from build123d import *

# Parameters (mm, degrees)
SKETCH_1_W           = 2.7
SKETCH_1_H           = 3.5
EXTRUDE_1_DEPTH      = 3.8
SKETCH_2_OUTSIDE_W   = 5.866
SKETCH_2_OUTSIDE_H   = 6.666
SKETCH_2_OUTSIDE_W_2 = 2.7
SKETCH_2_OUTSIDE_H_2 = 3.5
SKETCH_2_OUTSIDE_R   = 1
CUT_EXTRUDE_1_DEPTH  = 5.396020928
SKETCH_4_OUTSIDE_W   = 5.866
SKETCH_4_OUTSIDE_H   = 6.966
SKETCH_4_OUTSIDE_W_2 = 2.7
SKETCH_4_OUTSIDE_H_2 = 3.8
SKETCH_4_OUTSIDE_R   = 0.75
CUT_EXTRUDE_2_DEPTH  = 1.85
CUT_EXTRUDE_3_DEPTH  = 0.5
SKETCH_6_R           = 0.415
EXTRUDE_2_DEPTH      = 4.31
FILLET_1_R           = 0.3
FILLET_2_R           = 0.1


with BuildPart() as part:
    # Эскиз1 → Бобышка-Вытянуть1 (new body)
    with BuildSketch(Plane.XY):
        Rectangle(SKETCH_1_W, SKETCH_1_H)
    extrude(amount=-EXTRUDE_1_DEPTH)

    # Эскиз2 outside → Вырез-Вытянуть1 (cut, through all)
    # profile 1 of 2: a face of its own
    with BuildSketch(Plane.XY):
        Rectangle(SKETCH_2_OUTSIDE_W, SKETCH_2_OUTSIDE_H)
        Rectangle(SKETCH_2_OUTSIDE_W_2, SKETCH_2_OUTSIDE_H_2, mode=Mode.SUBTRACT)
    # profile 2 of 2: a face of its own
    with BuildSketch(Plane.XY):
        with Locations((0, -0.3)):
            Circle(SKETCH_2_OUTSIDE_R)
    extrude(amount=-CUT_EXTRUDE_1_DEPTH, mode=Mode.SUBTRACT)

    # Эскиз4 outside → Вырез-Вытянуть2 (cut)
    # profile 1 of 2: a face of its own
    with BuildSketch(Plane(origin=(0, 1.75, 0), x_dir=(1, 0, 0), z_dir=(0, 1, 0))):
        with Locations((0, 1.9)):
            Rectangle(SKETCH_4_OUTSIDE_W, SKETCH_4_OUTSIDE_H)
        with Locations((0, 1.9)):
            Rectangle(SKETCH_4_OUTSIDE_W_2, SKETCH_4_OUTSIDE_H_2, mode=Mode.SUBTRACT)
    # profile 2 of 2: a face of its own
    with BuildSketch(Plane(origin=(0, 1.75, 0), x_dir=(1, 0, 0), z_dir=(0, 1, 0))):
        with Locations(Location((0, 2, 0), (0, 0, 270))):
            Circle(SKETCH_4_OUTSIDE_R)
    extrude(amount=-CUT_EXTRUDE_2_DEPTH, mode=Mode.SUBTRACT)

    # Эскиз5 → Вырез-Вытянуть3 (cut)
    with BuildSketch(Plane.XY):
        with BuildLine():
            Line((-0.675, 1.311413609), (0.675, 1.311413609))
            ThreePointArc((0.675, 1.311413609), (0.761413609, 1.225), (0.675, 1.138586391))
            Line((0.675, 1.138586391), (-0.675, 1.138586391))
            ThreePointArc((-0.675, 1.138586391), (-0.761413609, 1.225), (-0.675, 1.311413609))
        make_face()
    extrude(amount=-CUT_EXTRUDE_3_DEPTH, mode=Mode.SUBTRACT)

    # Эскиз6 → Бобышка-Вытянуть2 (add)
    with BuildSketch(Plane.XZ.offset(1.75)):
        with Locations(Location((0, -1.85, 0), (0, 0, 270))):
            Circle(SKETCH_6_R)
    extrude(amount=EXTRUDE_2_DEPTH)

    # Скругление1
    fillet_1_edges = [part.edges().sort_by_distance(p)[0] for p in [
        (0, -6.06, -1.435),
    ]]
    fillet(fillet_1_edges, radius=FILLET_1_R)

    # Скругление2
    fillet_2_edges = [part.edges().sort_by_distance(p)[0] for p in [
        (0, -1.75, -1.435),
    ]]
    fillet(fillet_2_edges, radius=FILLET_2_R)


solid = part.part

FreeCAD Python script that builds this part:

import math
import FreeCAD as App
import Part
import Sketcher

V = App.Vector


def edges_at(feature, points):
    """Names of the edges that pass closest to the given points."""
    edges = feature.Shape.Edges
    near = lambda p: min(range(len(edges)), key=lambda i: edges[i].distToShape(Part.Vertex(*p))[0])
    return sorted({f"Edge{near(p) + 1}" for p in points})

doc = App.newDocument("Part")
params = doc.addObject("Spreadsheet::Sheet", "Params")
for row, (alias, value) in enumerate([
    ("sketch1_width", "2.7 mm"),
    ("sketch1_height", "3.5 mm"),
    ("pad1_length", "3.8 mm"),
    ("sketch2_diameter", "2 mm"),
    ("sketch2_width", "2.7 mm"),
    ("sketch2_height", "3.5 mm"),
    ("pocket1_length", "5.396021 mm"),
    ("sketch3_diameter", "1.5 mm"),
    ("sketch3_width", "2.7 mm"),
    ("sketch3_height", "3.8 mm"),
    ("pocket2_length", "1.85 mm"),
    ("sketch4_width", "1.35 mm"),
    ("pocket3_length", "0.5 mm"),
    ("sketch5_diameter", "0.83 mm"),
    ("pad2_length", "4.31 mm"),
    ("fillet_radius", "0.3 mm"),
    ("fillet2_radius", "0.1 mm"),
], start=1):
    params.set(f"A{row}", alias)
    params.set(f"B{row}", "=" + value)
    params.setAlias(f"B{row}", alias)

body = doc.addObject("PartDesign::Body", "Body")

# Sketch on XY plane
sketch1 = body.newObject("Sketcher::SketchObject", "Sketch")
sketch1.AttachmentSupport = (doc.getObject("XY_Plane"), [""])
sketch1.MapMode = "FlatFace"
sketch1.addGeometry([
    Part.LineSegment(V(-1.4, 1.8, 0), V(-1.4, -1.8, 0)),
    Part.LineSegment(V(-1.4, -1.8, 0), V(1.4, -1.8, 0)),
    Part.LineSegment(V(1.4, -1.8, 0), V(1.4, 1.8, 0)),
    Part.LineSegment(V(1.4, 1.8, 0), V(-1.4, 1.8, 0)),
], False)
sketch1.addConstraint([
    Sketcher.Constraint("Coincident", 0, 2, 1, 1),
    Sketcher.Constraint("Coincident", 1, 2, 2, 1),
    Sketcher.Constraint("Coincident", 2, 2, 3, 1),
    Sketcher.Constraint("Coincident", 3, 2, 0, 1),
    Sketcher.Constraint("Vertical", 0),
    Sketcher.Constraint("Horizontal", 1),
    Sketcher.Constraint("Vertical", 2),
    Sketcher.Constraint("Horizontal", 3),
    Sketcher.Constraint("Symmetric", 0, 2, 2, 2, -1, 1),
    Sketcher.Constraint("DistanceX", 1, 1, 1, 2, 2.7),
    Sketcher.Constraint("DistanceY", 0, 2, 0, 1, 3.5),
])
sketch1.setExpression("Constraints[9]", "Params.sketch1_width")
sketch1.setExpression("Constraints[10]", "Params.sketch1_height")
pad1 = body.newObject("PartDesign::Pad", "Pad")
pad1.Profile = sketch1
pad1.setExpression("Length", "Params.pad1_length")
pad1.Reversed = True

# Sketch on XY plane
sketch2 = body.newObject("Sketcher::SketchObject", "Sketch001")
sketch2.AttachmentSupport = (doc.getObject("XY_Plane"), [""])
sketch2.MapMode = "FlatFace"
sketch2.addGeometry([
    Part.LineSegment(V(-2.9, 3.3, 0), V(-2.9, -3.3, 0)),  # 0
    Part.LineSegment(V(-2.9, -3.3, 0), V(2.9, -3.3, 0)),  # 1
    Part.LineSegment(V(2.9, -3.3, 0), V(2.9, 3.3, 0)),  # 2
    Part.LineSegment(V(2.9, 3.3, 0), V(-2.9, 3.3, 0)),  # 3
    Part.LineSegment(V(1.4, -1.8, 0), V(-1.4, -1.8, 0)),  # 4
    Part.LineSegment(V(-1.4, -1.8, 0), V(-1.4, 1.8, 0)),  # 5
    Part.LineSegment(V(-1.4, 1.8, 0), V(1.4, 1.8, 0)),  # 6
    Part.LineSegment(V(1.4, 1.8, 0), V(1.4, -1.8, 0)),  # 7
    Part.Circle(V(0, -0.3, 0), V(0, 0, 1), 1),  # 8
], False)
sketch2.addConstraint([
    Sketcher.Constraint("Coincident", 0, 2, 1, 1),
    Sketcher.Constraint("Coincident", 1, 2, 2, 1),
    Sketcher.Constraint("Coincident", 2, 2, 3, 1),
    Sketcher.Constraint("Coincident", 3, 2, 0, 1),
    Sketcher.Constraint("Coincident", 4, 2, 5, 1),
    Sketcher.Constraint("Coincident", 5, 2, 6, 1),
    Sketcher.Constraint("Coincident", 6, 2, 7, 1),
    Sketcher.Constraint("Coincident", 7, 2, 4, 1),
    Sketcher.Constraint("Vertical", 0),
    Sketcher.Constraint("Horizontal", 1),
    Sketcher.Constraint("Vertical", 2),
    Sketcher.Constraint("Horizontal", 3),
    Sketcher.Constraint("Horizontal", 4),
    Sketcher.Constraint("Vertical", 5),
    Sketcher.Constraint("Horizontal", 6),
    Sketcher.Constraint("Vertical", 7),
    Sketcher.Constraint("Symmetric", 0, 2, 2, 2, -1, 1),
    Sketcher.Constraint("Symmetric", 4, 2, 6, 2, -1, 1),
    Sketcher.Constraint("PointOnObject", 8, 3, -2),
    Sketcher.Constraint("Diameter", 8, 2.0),
    Sketcher.Constraint("DistanceX", 4, 2, 4, 1, 2.7),
    Sketcher.Constraint("DistanceY", 5, 1, 5, 2, 3.5),
    Sketcher.Constraint("DistanceY", 8, 3, -1, 1, 0.3),
    Sketcher.Constraint("DistanceX", 1, 1, 1, 2, 5.866),
    Sketcher.Constraint("DistanceY", 0, 2, 0, 1, 6.666),
])
sketch2.setExpression("Constraints[19]", "Params.sketch2_diameter")
sketch2.setExpression("Constraints[20]", "Params.sketch2_width")
sketch2.setExpression("Constraints[21]", "Params.sketch2_height")
pocket1 = body.newObject("PartDesign::Pocket", "Pocket")
pocket1.Profile = sketch2
pocket1.setExpression("Length", "Params.pocket1_length")

# Sketch on XZ plane
sketch3 = body.newObject("Sketcher::SketchObject", "Sketch002")
sketch3.AttachmentSupport = (doc.getObject("XZ_Plane"), [""])
sketch3.MapMode = "FlatFace"
sketch3.AttachmentOffset = App.Placement(V(0, 0, -1.75), App.Rotation())
sketch3.addGeometry([
    Part.LineSegment(V(-2.9, -5.4, 0), V(-2.9, 1.6, 0)),  # 0
    Part.LineSegment(V(-2.9, 1.6, 0), V(2.9, 1.6, 0)),  # 1
    Part.LineSegment(V(2.9, 1.6, 0), V(2.9, -5.4, 0)),  # 2
    Part.LineSegment(V(2.9, -5.4, 0), V(-2.9, -5.4, 0)),  # 3
    Part.LineSegment(V(1.4, 0, 0), V(-1.4, 0, 0)),  # 4
    Part.LineSegment(V(-1.4, 0, 0), V(-1.4, -3.8, 0)),  # 5
    Part.LineSegment(V(-1.4, -3.8, 0), V(1.4, -3.8, 0)),  # 6
    Part.LineSegment(V(1.4, -3.8, 0), V(1.4, 0, 0)),  # 7
    Part.Circle(V(0, -2, 0), V(0, 0, 1), 0.8),  # 8
], False)
sketch3.addConstraint([
    Sketcher.Constraint("Coincident", 0, 2, 1, 1),
    Sketcher.Constraint("Coincident", 1, 2, 2, 1),
    Sketcher.Constraint("Coincident", 2, 2, 3, 1),
    Sketcher.Constraint("Coincident", 3, 2, 0, 1),
    Sketcher.Constraint("Coincident", 4, 2, 5, 1),
    Sketcher.Constraint("Coincident", 5, 2, 6, 1),
    Sketcher.Constraint("Coincident", 6, 2, 7, 1),
    Sketcher.Constraint("Coincident", 7, 2, 4, 1),
    Sketcher.Constraint("Vertical", 0),
    Sketcher.Constraint("Horizontal", 1),
    Sketcher.Constraint("Vertical", 2),
    Sketcher.Constraint("Horizontal", 3),
    Sketcher.Constraint("Horizontal", 4),
    Sketcher.Constraint("Vertical", 5),
    Sketcher.Constraint("Horizontal", 6),
    Sketcher.Constraint("Vertical", 7),
    Sketcher.Constraint("Symmetric", 4, 2, 7, 2, -1, 1),
    Sketcher.Constraint("PointOnObject", 8, 3, -2),
    Sketcher.Constraint("Diameter", 8, 1.5),
    Sketcher.Constraint("DistanceX", 4, 2, 4, 1, 2.7),
    Sketcher.Constraint("DistanceY", 5, 2, 5, 1, 3.8),
    Sketcher.Constraint("DistanceY", 8, 3, -1, 1, 2.0),
    Sketcher.Constraint("DistanceX", 1, 1, 1, 2, 5.866),
    Sketcher.Constraint("DistanceY", 0, 1, 0, 2, 6.966),
    Sketcher.Constraint("DistanceX", 0, 2, -1, 1, 2.933),
    Sketcher.Constraint("DistanceY", -1, 1, 0, 2, 1.583),
])
sketch3.setExpression("Constraints[18]", "Params.sketch3_diameter")
sketch3.setExpression("Constraints[19]", "Params.sketch3_width")
sketch3.setExpression("Constraints[20]", "Params.sketch3_height")
pocket2 = body.newObject("PartDesign::Pocket", "Pocket001")
pocket2.Profile = sketch3
pocket2.setExpression("Length", "Params.pocket2_length")
pocket2.Reversed = True

# Sketch on XY plane
sketch4 = body.newObject("Sketcher::SketchObject", "Sketch003")
sketch4.AttachmentSupport = (doc.getObject("XY_Plane"), [""])
sketch4.MapMode = "FlatFace"
sketch4.addGeometry([
    Part.LineSegment(V(0.68, 1.31, 0), V(-0.68, 1.31, 0)),
    Part.ArcOfCircle(Part.Circle(V(-0.68, 1.23, 0), V(0, 0, 1), 0.09), math.radians(90), math.radians(270)),
    Part.LineSegment(V(-0.68, 1.14, 0), V(0.68, 1.14, 0)),
    Part.ArcOfCircle(Part.Circle(V(0.68, 1.23, 0), V(0, 0, 1), 0.09), math.radians(-90), math.radians(90)),
], False)
sketch4.addConstraint([
    Sketcher.Constraint("Tangent", 0, 2, 1, 1),
    Sketcher.Constraint("Tangent", 1, 2, 2, 1),
    Sketcher.Constraint("Tangent", 2, 2, 3, 1),
    Sketcher.Constraint("Tangent", 3, 2, 0, 1),
    Sketcher.Constraint("Horizontal", 0),
    Sketcher.Constraint("Horizontal", 2),
    Sketcher.Constraint("DistanceX", 0, 2, 0, 1, 1.35),
    Sketcher.Constraint("DistanceX", 1, 3, -1, 1, 0.675),
    Sketcher.Constraint("DistanceY", -1, 1, 1, 3, 1.225),
    Sketcher.Constraint("Radius", 1, 0.086414),
])
sketch4.setExpression("Constraints[6]", "Params.sketch4_width")
pocket3 = body.newObject("PartDesign::Pocket", "Pocket002")
pocket3.Profile = sketch4
pocket3.setExpression("Length", "Params.pocket3_length")

# Sketch on XZ plane
sketch5 = body.newObject("Sketcher::SketchObject", "Sketch004")
sketch5.AttachmentSupport = (doc.getObject("XZ_Plane"), [""])
sketch5.MapMode = "FlatFace"
sketch5.AttachmentOffset = App.Placement(V(0, 0, 1.75), App.Rotation())
sketch5.addGeometry(Part.Circle(V(0, -1.85, 0), V(0, 0, 1), 0.41), False)
sketch5.addConstraint([
    Sketcher.Constraint("PointOnObject", 0, 3, -2),
    Sketcher.Constraint("Diameter", 0, 0.83),
    Sketcher.Constraint("DistanceY", 0, 3, -1, 1, 1.85),
])
sketch5.setExpression("Constraints[1]", "Params.sketch5_diameter")
pad2 = body.newObject("PartDesign::Pad", "Pad001")
pad2.Profile = sketch5
pad2.setExpression("Length", "Params.pad2_length")
doc.recompute()

fillet = body.newObject("PartDesign::Fillet", "Fillet")
fillet.Base = (pad2, edges_at(pad2, [(0, -6.06, -1.435)]))
fillet.setExpression("Radius", "Params.fillet_radius")
doc.recompute()

fillet2 = body.newObject("PartDesign::Fillet", "Fillet001")
fillet2.Base = (fillet, edges_at(fillet, [(0, -1.75, -1.435)]))
fillet2.setExpression("Radius", "Params.fillet2_radius")

doc.recompute()
